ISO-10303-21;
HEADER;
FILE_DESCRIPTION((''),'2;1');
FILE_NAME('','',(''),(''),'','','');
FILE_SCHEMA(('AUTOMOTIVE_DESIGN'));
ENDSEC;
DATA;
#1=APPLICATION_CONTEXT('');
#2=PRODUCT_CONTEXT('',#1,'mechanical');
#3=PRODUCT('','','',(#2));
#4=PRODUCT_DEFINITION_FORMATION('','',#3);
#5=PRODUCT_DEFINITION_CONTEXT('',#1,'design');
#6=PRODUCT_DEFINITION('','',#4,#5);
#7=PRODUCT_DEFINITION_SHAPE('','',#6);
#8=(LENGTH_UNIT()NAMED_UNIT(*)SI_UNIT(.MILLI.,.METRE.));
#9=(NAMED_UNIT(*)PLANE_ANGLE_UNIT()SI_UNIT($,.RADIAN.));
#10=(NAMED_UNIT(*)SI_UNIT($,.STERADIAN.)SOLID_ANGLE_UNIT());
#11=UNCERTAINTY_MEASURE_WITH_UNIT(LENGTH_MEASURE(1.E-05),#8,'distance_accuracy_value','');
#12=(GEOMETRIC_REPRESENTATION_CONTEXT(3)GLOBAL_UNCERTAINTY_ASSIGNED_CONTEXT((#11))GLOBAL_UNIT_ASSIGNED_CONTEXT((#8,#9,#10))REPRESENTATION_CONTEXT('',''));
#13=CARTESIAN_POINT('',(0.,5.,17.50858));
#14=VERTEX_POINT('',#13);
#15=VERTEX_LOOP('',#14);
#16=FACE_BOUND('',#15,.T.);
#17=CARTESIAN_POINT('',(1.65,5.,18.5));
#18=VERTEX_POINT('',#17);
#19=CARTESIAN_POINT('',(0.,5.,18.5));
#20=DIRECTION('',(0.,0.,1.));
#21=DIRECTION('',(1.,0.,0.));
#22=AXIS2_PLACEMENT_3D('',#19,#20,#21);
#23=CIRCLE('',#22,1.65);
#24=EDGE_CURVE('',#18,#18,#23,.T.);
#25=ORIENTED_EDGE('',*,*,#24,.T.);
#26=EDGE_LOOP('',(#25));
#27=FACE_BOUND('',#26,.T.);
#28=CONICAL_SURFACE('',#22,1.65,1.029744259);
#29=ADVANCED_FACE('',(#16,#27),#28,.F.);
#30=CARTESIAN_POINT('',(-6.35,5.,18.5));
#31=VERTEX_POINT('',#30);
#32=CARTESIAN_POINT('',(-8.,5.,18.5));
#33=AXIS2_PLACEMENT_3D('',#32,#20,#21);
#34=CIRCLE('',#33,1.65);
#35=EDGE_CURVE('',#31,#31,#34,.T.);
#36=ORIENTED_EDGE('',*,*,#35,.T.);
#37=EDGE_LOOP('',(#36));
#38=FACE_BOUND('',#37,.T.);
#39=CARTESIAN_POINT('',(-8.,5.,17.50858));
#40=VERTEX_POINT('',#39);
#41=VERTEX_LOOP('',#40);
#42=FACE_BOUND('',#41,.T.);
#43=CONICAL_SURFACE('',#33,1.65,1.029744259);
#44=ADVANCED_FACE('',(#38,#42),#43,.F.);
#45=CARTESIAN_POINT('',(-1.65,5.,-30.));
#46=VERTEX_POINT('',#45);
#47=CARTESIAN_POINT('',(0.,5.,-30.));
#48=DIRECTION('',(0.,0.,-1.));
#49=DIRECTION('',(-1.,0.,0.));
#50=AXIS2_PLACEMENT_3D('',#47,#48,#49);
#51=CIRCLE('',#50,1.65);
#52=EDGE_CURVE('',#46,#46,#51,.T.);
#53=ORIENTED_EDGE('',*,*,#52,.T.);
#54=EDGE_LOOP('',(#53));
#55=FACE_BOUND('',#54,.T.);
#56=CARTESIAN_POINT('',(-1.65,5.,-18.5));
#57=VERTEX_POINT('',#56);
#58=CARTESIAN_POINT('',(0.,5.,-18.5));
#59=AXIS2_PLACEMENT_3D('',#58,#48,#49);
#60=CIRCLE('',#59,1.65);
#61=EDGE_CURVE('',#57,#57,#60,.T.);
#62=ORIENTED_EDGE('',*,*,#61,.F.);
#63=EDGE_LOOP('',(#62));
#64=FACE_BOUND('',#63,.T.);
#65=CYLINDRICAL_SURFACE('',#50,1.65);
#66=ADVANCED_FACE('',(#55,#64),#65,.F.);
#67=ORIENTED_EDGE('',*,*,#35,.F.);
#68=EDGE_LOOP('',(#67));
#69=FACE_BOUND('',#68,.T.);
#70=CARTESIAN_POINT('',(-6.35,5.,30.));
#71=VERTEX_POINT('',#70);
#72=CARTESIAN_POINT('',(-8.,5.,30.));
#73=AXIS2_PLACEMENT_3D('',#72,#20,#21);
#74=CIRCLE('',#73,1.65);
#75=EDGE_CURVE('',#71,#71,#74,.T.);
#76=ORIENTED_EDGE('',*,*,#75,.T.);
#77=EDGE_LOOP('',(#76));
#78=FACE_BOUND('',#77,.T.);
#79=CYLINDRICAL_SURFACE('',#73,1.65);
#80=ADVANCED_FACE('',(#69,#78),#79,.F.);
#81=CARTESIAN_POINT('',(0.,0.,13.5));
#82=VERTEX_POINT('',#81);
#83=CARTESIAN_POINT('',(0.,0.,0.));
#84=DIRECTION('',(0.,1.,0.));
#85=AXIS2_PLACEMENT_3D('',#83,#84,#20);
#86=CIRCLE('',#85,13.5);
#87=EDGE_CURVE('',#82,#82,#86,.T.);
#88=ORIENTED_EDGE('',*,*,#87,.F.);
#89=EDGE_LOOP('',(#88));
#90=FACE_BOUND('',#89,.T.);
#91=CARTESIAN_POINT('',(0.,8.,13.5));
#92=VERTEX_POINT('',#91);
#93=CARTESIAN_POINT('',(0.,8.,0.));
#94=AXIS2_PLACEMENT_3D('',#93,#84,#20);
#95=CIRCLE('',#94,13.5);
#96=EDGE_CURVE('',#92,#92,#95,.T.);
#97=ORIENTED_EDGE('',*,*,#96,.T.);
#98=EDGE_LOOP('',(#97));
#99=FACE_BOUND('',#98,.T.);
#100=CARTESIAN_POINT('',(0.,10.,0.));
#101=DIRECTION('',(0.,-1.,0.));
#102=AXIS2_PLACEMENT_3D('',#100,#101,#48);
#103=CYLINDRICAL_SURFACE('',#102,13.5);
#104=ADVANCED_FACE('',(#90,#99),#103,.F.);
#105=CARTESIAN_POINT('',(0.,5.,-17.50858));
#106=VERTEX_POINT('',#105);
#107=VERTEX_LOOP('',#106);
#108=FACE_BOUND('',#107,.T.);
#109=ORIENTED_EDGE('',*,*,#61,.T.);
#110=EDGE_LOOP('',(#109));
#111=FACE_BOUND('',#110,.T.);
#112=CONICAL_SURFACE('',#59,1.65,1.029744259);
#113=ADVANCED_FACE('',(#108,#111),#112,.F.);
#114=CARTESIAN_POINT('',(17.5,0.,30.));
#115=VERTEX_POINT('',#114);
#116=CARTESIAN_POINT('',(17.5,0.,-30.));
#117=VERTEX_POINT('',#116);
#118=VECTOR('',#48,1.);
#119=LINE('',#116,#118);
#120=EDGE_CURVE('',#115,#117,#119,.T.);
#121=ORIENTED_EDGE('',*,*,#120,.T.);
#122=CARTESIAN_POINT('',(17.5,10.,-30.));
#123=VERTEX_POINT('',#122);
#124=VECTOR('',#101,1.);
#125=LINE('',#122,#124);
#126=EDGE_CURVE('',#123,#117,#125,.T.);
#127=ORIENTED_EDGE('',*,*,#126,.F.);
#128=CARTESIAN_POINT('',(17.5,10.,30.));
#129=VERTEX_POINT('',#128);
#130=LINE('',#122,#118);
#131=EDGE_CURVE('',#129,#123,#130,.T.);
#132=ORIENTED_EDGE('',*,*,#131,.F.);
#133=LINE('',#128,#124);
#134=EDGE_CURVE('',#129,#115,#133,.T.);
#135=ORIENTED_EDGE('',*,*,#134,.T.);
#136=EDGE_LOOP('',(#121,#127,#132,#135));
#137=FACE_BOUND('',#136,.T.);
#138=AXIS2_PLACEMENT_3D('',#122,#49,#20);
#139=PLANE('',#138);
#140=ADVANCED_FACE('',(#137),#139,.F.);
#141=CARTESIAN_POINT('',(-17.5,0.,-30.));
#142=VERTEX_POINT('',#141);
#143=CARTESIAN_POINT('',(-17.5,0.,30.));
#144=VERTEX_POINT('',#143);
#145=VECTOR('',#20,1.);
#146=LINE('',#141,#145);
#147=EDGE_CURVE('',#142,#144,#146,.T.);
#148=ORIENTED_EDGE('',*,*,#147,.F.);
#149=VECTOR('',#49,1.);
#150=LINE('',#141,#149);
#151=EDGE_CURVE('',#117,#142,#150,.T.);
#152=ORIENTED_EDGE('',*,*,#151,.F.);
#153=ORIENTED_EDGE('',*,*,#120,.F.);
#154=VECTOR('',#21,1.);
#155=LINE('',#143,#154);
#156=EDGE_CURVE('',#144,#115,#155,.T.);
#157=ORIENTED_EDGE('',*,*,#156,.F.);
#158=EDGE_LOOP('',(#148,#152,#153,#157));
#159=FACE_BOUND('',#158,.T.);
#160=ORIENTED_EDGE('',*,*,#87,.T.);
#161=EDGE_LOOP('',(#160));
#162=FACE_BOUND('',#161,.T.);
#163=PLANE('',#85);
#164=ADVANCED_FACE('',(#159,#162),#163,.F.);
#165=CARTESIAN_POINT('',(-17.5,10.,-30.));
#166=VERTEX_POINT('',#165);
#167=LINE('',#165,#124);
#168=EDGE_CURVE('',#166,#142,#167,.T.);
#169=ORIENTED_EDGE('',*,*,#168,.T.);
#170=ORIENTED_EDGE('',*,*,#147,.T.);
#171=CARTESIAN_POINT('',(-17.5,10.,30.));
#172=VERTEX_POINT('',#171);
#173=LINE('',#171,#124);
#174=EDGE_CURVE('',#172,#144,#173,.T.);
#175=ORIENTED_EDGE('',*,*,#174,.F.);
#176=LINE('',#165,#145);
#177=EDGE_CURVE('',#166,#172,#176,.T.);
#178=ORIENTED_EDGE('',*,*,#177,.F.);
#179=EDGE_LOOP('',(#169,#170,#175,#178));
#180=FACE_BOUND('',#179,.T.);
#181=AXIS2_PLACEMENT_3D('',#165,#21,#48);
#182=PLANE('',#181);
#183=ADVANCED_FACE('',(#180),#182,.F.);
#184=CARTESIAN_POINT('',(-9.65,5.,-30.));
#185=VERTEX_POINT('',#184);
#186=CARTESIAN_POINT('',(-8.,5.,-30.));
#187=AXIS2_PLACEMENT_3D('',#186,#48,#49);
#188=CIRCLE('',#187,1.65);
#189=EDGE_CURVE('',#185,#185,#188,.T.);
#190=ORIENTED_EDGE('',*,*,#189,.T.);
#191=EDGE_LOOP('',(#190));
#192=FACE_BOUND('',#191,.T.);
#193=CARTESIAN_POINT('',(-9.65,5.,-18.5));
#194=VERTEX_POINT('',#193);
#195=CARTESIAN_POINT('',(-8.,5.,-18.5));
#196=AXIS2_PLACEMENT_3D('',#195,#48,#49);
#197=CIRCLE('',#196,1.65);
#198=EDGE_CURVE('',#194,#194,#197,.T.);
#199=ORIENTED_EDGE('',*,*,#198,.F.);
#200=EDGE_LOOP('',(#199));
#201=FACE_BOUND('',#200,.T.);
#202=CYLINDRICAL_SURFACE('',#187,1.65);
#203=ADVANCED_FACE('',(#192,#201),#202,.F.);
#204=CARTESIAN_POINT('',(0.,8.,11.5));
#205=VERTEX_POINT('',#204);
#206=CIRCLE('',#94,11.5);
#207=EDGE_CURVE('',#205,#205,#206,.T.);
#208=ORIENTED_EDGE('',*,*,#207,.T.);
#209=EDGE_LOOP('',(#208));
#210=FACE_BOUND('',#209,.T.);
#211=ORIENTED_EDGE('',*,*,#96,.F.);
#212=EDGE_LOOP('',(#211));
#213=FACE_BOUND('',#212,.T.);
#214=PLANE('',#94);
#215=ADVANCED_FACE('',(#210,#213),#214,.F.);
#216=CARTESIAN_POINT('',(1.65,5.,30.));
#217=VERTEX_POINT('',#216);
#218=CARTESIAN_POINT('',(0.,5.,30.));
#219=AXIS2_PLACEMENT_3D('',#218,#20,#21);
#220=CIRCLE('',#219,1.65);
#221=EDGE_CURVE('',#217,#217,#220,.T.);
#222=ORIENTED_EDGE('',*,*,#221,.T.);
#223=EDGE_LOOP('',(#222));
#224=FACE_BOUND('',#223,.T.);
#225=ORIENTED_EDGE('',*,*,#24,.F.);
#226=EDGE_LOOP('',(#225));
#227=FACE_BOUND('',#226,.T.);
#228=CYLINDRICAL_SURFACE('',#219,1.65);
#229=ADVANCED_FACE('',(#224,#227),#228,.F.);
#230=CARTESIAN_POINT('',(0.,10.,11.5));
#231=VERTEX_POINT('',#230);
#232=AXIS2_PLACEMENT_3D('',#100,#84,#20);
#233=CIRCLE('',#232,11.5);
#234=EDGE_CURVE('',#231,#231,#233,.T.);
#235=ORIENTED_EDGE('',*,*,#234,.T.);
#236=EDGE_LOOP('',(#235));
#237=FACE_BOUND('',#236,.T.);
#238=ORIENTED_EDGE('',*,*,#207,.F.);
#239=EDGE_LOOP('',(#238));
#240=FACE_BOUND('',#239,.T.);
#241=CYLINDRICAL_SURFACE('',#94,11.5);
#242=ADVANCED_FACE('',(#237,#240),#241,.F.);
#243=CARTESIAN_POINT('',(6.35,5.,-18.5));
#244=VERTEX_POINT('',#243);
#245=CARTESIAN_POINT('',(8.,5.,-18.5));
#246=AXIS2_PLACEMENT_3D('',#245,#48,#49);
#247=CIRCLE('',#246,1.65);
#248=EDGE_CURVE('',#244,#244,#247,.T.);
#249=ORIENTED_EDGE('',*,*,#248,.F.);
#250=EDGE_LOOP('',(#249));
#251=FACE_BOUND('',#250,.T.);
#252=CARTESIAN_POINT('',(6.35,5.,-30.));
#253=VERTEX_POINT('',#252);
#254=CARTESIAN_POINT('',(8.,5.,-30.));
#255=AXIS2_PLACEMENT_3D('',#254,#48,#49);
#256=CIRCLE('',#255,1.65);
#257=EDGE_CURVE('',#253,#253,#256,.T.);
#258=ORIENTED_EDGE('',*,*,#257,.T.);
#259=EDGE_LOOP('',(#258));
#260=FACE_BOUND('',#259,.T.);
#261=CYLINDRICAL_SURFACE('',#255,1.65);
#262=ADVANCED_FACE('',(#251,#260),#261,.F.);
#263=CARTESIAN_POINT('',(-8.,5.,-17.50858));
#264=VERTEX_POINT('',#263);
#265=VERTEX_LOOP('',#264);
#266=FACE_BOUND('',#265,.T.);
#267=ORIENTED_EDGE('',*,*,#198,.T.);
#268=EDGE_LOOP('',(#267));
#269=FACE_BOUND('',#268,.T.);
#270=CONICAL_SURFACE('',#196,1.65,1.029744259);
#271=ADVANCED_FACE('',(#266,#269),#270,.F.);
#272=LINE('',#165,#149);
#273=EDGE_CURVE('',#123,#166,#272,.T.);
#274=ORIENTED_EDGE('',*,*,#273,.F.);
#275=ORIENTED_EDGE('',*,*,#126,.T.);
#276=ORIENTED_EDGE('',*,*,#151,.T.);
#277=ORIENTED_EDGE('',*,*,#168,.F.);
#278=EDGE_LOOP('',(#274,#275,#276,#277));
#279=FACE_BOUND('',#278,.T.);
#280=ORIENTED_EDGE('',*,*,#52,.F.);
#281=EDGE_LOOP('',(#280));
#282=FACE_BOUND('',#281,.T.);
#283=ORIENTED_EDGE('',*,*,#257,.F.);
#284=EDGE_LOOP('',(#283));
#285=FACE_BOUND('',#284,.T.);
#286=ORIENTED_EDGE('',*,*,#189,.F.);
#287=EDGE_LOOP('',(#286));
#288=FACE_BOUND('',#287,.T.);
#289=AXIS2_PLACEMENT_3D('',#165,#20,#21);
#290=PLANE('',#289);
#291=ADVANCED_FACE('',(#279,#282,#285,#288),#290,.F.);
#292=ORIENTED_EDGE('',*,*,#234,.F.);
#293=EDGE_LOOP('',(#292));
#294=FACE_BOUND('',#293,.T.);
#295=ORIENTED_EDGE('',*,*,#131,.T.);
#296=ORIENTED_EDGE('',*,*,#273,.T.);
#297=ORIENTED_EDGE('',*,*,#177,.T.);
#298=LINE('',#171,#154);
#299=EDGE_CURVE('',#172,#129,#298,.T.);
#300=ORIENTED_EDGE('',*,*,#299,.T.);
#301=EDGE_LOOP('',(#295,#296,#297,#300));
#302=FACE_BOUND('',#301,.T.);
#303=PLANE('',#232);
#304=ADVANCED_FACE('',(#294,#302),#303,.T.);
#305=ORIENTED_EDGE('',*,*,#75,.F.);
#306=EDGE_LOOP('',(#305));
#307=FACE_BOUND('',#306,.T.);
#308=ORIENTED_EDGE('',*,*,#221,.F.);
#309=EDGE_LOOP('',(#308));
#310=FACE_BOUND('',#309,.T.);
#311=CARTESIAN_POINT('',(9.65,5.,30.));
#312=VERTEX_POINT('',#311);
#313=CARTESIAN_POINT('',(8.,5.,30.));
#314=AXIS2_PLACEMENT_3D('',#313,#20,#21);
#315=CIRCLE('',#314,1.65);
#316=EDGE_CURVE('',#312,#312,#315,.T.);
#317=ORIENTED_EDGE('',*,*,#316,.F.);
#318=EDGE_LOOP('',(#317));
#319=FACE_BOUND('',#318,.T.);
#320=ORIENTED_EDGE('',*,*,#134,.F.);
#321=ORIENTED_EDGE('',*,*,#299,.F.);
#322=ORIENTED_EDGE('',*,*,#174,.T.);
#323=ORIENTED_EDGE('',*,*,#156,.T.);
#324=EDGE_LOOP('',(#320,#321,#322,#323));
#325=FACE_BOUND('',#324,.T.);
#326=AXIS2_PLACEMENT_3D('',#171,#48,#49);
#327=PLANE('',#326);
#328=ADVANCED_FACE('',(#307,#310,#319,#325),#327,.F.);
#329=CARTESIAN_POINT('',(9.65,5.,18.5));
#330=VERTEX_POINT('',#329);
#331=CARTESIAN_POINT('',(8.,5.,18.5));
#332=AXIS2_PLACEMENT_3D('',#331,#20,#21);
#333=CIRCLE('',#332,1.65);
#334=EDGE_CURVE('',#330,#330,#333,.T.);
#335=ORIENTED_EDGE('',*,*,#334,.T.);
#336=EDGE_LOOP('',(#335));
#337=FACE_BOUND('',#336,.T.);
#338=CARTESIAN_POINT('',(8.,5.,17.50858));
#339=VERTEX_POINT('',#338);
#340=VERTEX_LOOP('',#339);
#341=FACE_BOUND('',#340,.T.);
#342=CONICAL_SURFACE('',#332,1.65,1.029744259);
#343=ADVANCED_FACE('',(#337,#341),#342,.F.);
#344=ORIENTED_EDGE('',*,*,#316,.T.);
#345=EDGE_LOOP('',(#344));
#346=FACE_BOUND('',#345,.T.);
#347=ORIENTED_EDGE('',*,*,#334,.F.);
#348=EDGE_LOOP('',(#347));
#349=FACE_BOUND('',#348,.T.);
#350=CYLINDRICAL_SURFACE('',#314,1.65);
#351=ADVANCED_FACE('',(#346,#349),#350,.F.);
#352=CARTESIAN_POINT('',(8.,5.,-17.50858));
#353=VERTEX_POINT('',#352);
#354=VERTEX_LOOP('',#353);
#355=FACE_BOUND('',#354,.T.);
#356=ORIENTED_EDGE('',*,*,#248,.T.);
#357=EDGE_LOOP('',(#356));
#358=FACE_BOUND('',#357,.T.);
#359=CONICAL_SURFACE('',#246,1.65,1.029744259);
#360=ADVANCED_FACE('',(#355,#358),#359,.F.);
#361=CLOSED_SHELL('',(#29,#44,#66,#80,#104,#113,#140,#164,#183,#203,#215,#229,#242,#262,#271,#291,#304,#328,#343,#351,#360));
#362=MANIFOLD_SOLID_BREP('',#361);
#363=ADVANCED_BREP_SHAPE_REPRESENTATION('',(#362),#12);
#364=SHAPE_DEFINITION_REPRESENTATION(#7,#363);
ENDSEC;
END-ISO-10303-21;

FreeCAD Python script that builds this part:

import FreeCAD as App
import Part
import Sketcher
from FreeCAD import Vector
Q = App.Units.Quantity


def add_polygon(sketch, points):
    """Adds a closed chain of lines whose ends are joined by coincident constraints."""
    first, n = sketch.GeometryCount, len(points)
    for a, b in zip(points, points[1:] + points[:1]):
        sketch.addGeometry(Part.LineSegment(App.Vector(*a, 0), App.Vector(*b, 0)), False)
    for i in range(n):
        sketch.addConstraint(Sketcher.Constraint("Coincident", first + i, 2, first + (i + 1) % n, 1))

doc = App.newDocument("Part")
params = doc.addObject("Spreadsheet::Sheet", "Params")
for row, (alias, value) in enumerate([
    ("sketch1_diameter", "27 mm"),
    ("sketch1_width", "35 mm"),
    ("sketch1_height", "60 mm"),
    ("pad1_length", "10 mm"),
    ("sketch2_diameter", "27 mm"),
    ("sketch2_diameter2", "23 mm"),
    ("pad2_length", "2 mm"),
    ("sketch3_diameter", "3.3 mm"),
    ("hole_diameter", "3.3 mm"),
    ("hole_depth", "11.5 mm"),
    ("sketch4_diameter", "3.3 mm"),
    ("hole2_diameter", "3.3 mm"),
    ("hole2_depth", "11.5 mm"),
], start=1):
    params.set(f"A{row}", alias)
    params.set(f"B{row}", "=" + value)
    params.setAlias(f"B{row}", alias)

body = doc.addObject("PartDesign::Body", "Body")

# Sketch on XZ plane
sketch1 = body.newObject("Sketcher::SketchObject", "Sketch")
sketch1.AttachmentSupport = (doc.getObject("XZ_Plane"), [""])
sketch1.MapMode = "FlatFace"
add_polygon(sketch1, [(-18, -30), (-18, 30), (18, 30), (18, -30)])  # lines 0-3
sketch1.addGeometry(Part.Circle(Vector(0, 0, 0), Vector(0, 0, 1), 14), False)  # 4
sketch1.addConstraint([
    Sketcher.Constraint("Vertical", 0),
    Sketcher.Constraint("Horizontal", 1),
    Sketcher.Constraint("Vertical", 2),
    Sketcher.Constraint("Horizontal", 3),
    Sketcher.Constraint("Coincident", 4, 3, -1, 1),
    Sketcher.Constraint("Symmetric", 0, 2, 2, 2, -1, 1),
    Sketcher.Constraint("Diameter", 4, Q("27 mm")),
    Sketcher.Constraint("DistanceX", 1, 1, 1, 2, Q("35 mm")),
    Sketcher.Constraint("DistanceY", 0, 1, 0, 2, Q("60 mm")),
])
sketch1.setExpression("Constraints[10]", "Params.sketch1_diameter")
sketch1.setExpression("Constraints[11]", "Params.sketch1_width")
sketch1.setExpression("Constraints[12]", "Params.sketch1_height")
pad1 = body.newObject("PartDesign::Pad", "Pad")
pad1.Profile = sketch1
pad1.setExpression("Length", "Params.pad1_length")
pad1.Reversed = True

# Sketch on XZ plane
sketch2 = body.newObject("Sketcher::SketchObject", "Sketch001")
sketch2.AttachmentSupport = (doc.getObject("XZ_Plane"), [""])
sketch2.MapMode = "FlatFace"
sketch2.AttachmentOffset = App.Placement(Vector(0, 0, -10), App.Rotation())
sketch2.addGeometry([
    Part.Circle(Vector(0, 0, 0), Vector(0, 0, 1), 14),
    Part.Circle(Vector(0, 0, 0), Vector(0, 0, 1), 12),
], False)
sketch2.addConstraint([
    Sketcher.Constraint("Coincident", 0, 3, -1, 1),
    Sketcher.Constraint("Coincident", 1, 3, -1, 1),
    Sketcher.Constraint("Diameter", 0, Q("27 mm")),
    Sketcher.Constraint("Diameter", 1, Q("23 mm")),
])
sketch2.setExpression("Constraints[2]", "Params.sketch2_diameter")
sketch2.setExpression("Constraints[3]", "Params.sketch2_diameter2")
pad2 = body.newObject("PartDesign::Pad", "Pad001")
pad2.Profile = sketch2
pad2.setExpression("Length", "Params.pad2_length")

# Sketch on XY plane
sketch3 = body.newObject("Sketcher::SketchObject", "Sketch002")
sketch3.AttachmentSupport = (doc.getObject("XY_Plane"), [""])
sketch3.MapMode = "FlatFace"
sketch3.AttachmentOffset = App.Placement(Vector(0, 0, 30), App.Rotation())
sketch3.addGeometry([
    Part.Circle(Vector(-8, 5, 0), Vector(0, 0, 1), 1.6),
    Part.Circle(Vector(0, 5, 0), Vector(0, 0, 1), 1.6),
    Part.Circle(Vector(8, 5, 0), Vector(0, 0, 1), 1.6),
], False)
sketch3.addConstraint([
    Sketcher.Constraint("Equal", 0, 1),
    Sketcher.Constraint("Equal", 1, 2),
    Sketcher.Constraint("Symmetric", 0, 3, 2, 3, -2),
    Sketcher.Constraint("PointOnObject", 1, 3, -2),
    Sketcher.Constraint("Horizontal", 0, 3, 1, 3),
    Sketcher.Constraint("Diameter", 0, Q("3.3 mm")),
    Sketcher.Constraint("DistanceX", 0, 3, -1, 1, Q("8 mm")),
    Sketcher.Constraint("DistanceY", -1, 1, 0, 3, Q("5 mm")),
])
sketch3.setExpression("Constraints[5]", "Params.sketch3_diameter")
doc.recompute()
hole = body.newObject("PartDesign::Hole", "Hole")
hole.Profile = sketch3
hole.ThreadType = "None"
hole.setExpression("Diameter", "Params.hole_diameter")
hole.DepthType = "Dimension"
hole.setExpression("Depth", "Params.hole_depth")
hole.DrillPoint = "Angled"
hole.DrillPointAngle = 118

# Sketch on XY plane
sketch4 = body.newObject("Sketcher::SketchObject", "Sketch003")
sketch4.AttachmentSupport = (doc.getObject("XY_Plane"), [""])
sketch4.MapMode = "FlatFace"
sketch4.AttachmentOffset = App.Placement(Vector(0, 0, -30), App.Rotation())
sketch4.addGeometry([
    Part.Circle(Vector(8, 5, 0), Vector(0, 0, 1), 1.6),
    Part.Circle(Vector(0, 5, 0), Vector(0, 0, 1), 1.6),
    Part.Circle(Vector(-8, 5, 0), Vector(0, 0, 1), 1.6),
], False)
sketch4.addConstraint([
    Sketcher.Constraint("Equal", 0, 1),
    Sketcher.Constraint("Equal", 1, 2),
    Sketcher.Constraint("Symmetric", 0, 3, 2, 3, -2),
    Sketcher.Constraint("PointOnObject", 1, 3, -2),
    Sketcher.Constraint("Horizontal", 0, 3, 1, 3),
    Sketcher.Constraint("Diameter", 0, Q("3.3 mm")),
    Sketcher.Constraint("DistanceX", -1, 1, 0, 3, Q("8 mm")),
    Sketcher.Constraint("DistanceY", -1, 1, 0, 3, Q("5 mm")),
])
sketch4.setExpression("Constraints[5]", "Params.sketch4_diameter")
doc.recompute()
hole2 = body.newObject("PartDesign::Hole", "Hole001")
hole2.Profile = sketch4
hole2.ThreadType = "None"
hole2.setExpression("Diameter", "Params.hole2_diameter")
hole2.DepthType = "Dimension"
hole2.setExpression("Depth", "Params.hole2_depth")
hole2.DrillPoint = "Angled"
hole2.DrillPointAngle = 118
hole2.Reversed = True

doc.recompute()
